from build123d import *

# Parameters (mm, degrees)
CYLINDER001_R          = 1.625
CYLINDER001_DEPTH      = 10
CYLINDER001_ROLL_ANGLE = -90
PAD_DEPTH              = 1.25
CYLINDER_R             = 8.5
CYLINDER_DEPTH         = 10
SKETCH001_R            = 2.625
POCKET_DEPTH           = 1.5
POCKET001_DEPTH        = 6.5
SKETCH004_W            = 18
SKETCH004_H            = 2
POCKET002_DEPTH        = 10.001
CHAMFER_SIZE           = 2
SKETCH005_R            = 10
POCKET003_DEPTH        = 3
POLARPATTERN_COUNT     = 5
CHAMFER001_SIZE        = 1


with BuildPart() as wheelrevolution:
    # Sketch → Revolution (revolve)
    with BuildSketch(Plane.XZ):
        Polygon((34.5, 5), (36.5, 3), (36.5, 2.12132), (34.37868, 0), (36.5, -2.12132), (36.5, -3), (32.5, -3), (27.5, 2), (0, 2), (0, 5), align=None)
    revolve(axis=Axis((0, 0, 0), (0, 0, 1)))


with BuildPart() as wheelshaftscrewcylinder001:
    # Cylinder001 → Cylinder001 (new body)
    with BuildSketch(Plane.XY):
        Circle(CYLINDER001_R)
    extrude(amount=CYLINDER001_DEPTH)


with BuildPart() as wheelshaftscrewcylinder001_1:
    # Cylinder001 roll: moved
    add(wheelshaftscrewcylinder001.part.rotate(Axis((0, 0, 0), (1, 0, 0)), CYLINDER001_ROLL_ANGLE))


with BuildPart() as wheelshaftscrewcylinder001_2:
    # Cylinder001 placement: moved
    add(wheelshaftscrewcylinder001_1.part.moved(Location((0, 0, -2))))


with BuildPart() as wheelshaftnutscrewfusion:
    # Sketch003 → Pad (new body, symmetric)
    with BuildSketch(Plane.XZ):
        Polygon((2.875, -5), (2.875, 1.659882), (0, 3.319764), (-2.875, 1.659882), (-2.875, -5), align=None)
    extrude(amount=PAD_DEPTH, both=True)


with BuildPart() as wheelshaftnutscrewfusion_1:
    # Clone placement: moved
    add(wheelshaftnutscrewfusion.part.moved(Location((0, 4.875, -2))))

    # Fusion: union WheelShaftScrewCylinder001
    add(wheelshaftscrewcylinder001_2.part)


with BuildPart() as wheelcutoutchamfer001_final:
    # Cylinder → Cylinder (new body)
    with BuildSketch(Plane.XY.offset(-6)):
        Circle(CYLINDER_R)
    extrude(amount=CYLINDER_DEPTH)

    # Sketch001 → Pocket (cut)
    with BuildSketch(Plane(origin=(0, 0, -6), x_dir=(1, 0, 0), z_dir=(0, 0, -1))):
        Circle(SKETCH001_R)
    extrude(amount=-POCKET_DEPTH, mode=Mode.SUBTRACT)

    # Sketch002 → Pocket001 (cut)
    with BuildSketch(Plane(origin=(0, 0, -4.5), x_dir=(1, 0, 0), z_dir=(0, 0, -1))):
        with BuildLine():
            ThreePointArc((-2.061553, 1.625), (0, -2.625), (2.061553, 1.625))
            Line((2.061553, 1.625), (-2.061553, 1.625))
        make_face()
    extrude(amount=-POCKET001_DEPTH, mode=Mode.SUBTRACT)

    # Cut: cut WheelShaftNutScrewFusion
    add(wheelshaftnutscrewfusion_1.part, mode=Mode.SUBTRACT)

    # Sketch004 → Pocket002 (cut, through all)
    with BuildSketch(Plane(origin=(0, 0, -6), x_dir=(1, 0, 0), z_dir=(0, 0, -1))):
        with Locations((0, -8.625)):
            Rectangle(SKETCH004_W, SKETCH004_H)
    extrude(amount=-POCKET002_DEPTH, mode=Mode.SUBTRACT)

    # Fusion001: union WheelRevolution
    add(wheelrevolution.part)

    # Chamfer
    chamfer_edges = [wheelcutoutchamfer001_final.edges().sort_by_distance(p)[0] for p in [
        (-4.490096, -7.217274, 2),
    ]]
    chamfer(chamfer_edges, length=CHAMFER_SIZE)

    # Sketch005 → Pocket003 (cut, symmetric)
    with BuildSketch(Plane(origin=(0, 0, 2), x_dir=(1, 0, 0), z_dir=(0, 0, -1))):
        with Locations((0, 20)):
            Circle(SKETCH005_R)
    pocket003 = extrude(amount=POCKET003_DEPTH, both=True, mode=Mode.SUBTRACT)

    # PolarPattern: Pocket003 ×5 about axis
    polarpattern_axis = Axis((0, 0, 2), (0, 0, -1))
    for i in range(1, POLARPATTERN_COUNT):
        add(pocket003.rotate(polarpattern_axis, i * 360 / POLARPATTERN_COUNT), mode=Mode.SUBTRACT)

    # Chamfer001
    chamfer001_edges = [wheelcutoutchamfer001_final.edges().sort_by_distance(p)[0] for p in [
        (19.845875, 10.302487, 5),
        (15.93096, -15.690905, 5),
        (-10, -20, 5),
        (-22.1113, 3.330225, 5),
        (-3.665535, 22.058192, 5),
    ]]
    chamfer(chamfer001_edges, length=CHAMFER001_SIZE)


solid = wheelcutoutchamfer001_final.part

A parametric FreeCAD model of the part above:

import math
import FreeCAD as App
import Part
import Sketcher
Q = App.Units.Quantity


def edges_at(feature, points):
    """Names of the edges that pass closest to the given points."""
    edges = feature.Shape.Edges
    near = lambda p: min(range(len(edges)), key=lambda i: edges[i].distToShape(Part.Vertex(*p))[0])
    return sorted({f"Edge{near(p) + 1}" for p in points})

doc = App.newDocument("Part")
body = doc.addObject("PartDesign::Body", "Body")

# Sketch on XZ plane
sketch1 = body.newObject("Sketcher::SketchObject", "Sketch")
sketch1.AttachmentSupport = (doc.getObject("XZ_Plane"), [""])
sketch1.MapMode = "FlatFace"
sketch1.addGeometry([
    Part.LineSegment(App.Vector(36.5, 3, 0), App.Vector(34.5, 5, 0)),  # 0
    Part.LineSegment(App.Vector(34.5, 5, 0), App.Vector(0, 5, 0)),  # 1
    Part.LineSegment(App.Vector(0, 5, 0), App.Vector(0, 2, 0)),  # 2
    Part.LineSegment(App.Vector(0, 2, 0), App.Vector(27.5, 2, 0)),  # 3
    Part.LineSegment(App.Vector(27.5, 2, 0), App.Vector(32.5, -3, 0)),  # 4
    Part.LineSegment(App.Vector(32.5, -3, 0), App.Vector(36.5, -3, 0)),  # 5
    Part.LineSegment(App.Vector(36.5, -3, 0), App.Vector(36.5, -2.1, 0)),  # 6
    Part.LineSegment(App.Vector(36.5, -2.1, 0), App.Vector(34.4, 0, 0)),  # 7
    Part.LineSegment(App.Vector(34.4, 0, 0), App.Vector(36.5, 2.1, 0)),  # 8
    Part.LineSegment(App.Vector(36.5, 2.1, 0), App.Vector(36.5, 3, 0)),  # 9
], False)
sketch1.addConstraint([
    Sketcher.Constraint("Coincident", 0, 2, 1, 1),
    Sketcher.Constraint("Coincident", 1, 2, 2, 1),
    Sketcher.Constraint("Coincident", 2, 2, 3, 1),
    Sketcher.Constraint("Coincident", 3, 2, 4, 1),
    Sketcher.Constraint("Coincident", 4, 2, 5, 1),
    Sketcher.Constraint("Coincident", 5, 2, 6, 1),
    Sketcher.Constraint("Coincident", 6, 2, 7, 1),
    Sketcher.Constraint("Coincident", 7, 2, 8, 1),
    Sketcher.Constraint("Coincident", 8, 2, 9, 1),
    Sketcher.Constraint("Coincident", 9, 2, 0, 1),
    Sketcher.Constraint("Horizontal", 1),
    Sketcher.Constraint("Vertical", 2),
    Sketcher.Constraint("Horizontal", 3),
    Sketcher.Constraint("Horizontal", 5),
    Sketcher.Constraint("Vertical", 6),
    Sketcher.Constraint("Vertical", 9),
    Sketcher.Constraint("Symmetric", 6, 2, 8, 2, -1),
    Sketcher.Constraint("PointOnObject", 1, 2, -2),
    Sketcher.Constraint("PointOnObject", 7, 2, -1),
    Sketcher.Constraint("Parallel", 0, 4),
    Sketcher.Constraint("Parallel", 4, 7),
    Sketcher.Constraint("Perpendicular", 7, 8),
    Sketcher.Constraint("Equal", 6, 9),
    Sketcher.Constraint("DistanceX", 5, 1, 5, 2, Q("4 mm")),
    Sketcher.Constraint("DistanceY", 2, 2, 2, 1, Q("3 mm")),
    Sketcher.Constraint("Distance", 7, Q("3 mm")),
    Sketcher.Constraint("DistanceX", 1, 2, 1, 1, Q("34.5 mm")),
    Sketcher.Constraint("DistanceX", 3, 1, 3, 2, Q("27.5 mm")),
    Sketcher.Constraint("DistanceY", -1, 1, 0, 2, Q("5 mm")),
])
revolution = body.newObject("PartDesign::Revolution", "Revolution")
revolution.Profile = sketch1
revolution.ReferenceAxis = (sketch1, ["V_Axis"])
revolution.Angle = 360
body2 = doc.addObject("PartDesign::Body", "Body001")

# Sketch on XY plane
sketch2 = body2.newObject("Sketcher::SketchObject", "Sketch001")
sketch2.AttachmentSupport = (doc.getObject("XY_Plane001"), [""])
sketch2.MapMode = "FlatFace"
sketch2.addGeometry(Part.Circle(App.Vector(0, 0, 0), App.Vector(0, 0, 1), 1.6), False)
sketch2.addConstraint([
    Sketcher.Constraint("Coincident", 0, 3, -1, 1),
    Sketcher.Constraint("Diameter", 0, Q("3.25 mm")),
])
pad1 = body2.newObject("PartDesign::Pad", "Pad")
pad1.Profile = sketch2
pad1.Length = 10
body3 = doc.addObject("PartDesign::Body", "Body002")
doc.recompute()

body2.Placement = App.Placement(App.Vector(0, 0, 0), App.Rotation(App.Vector(1, 0, 0), 270))
boolean = body3.newObject("PartDesign::Boolean", "Boolean")
boolean.Type = "Fuse"
boolean.addObjects([body2])
body4 = doc.addObject("PartDesign::Body", "Body003")
doc.recompute()

body3.Placement = App.Placement(App.Vector(0, 0, -2), App.Rotation(App.Vector(0, 0, 1), 0))
boolean2 = body4.newObject("PartDesign::Boolean", "Boolean001")
boolean2.Type = "Fuse"
boolean2.addObjects([body3])
body5 = doc.addObject("PartDesign::Body", "Body004")

# Sketch on XZ plane
sketch3 = body5.newObject("Sketcher::SketchObject", "Sketch002")
sketch3.AttachmentSupport = (doc.getObject("XZ_Plane004"), [""])
sketch3.MapMode = "FlatFace"
sketch3.addGeometry([
    Part.LineSegment(App.Vector(2.9, -5, 0), App.Vector(2.9, 1.7, 0)),  # 0
    Part.LineSegment(App.Vector(2.9, 1.7, 0), App.Vector(0, 3.3, 0)),  # 1
    Part.LineSegment(App.Vector(0, 3.3, 0), App.Vector(-2.9, 1.7, 0)),  # 2
    Part.LineSegment(App.Vector(-2.9, 1.7, 0), App.Vector(-2.9, -5, 0)),  # 3
    Part.LineSegment(App.Vector(-2.9, -5, 0), App.Vector(2.9, -5, 0)),  # 4
], False)
sketch3.addConstraint([
    Sketcher.Constraint("Coincident", 0, 2, 1, 1),
    Sketcher.Constraint("Coincident", 1, 2, 2, 1),
    Sketcher.Constraint("Coincident", 2, 2, 3, 1),
    Sketcher.Constraint("Coincident", 3, 2, 4, 1),
    Sketcher.Constraint("Coincident", 4, 2, 0, 1),
    Sketcher.Constraint("Vertical", 0),
    Sketcher.Constraint("Vertical", 3),
    Sketcher.Constraint("Horizontal", 4),
    Sketcher.Constraint("Symmetric", 0, 2, 2, 2, -2),
    Sketcher.Constraint("PointOnObject", 1, 2, -2),
    Sketcher.Constraint("Angle", 1, Q("150 deg")),
    Sketcher.Constraint("DistanceY", 3, 2, -1, 1, Q("5 mm")),
    Sketcher.Constraint("DistanceX", 4, 1, 4, 2, Q("5.75 mm")),
    Sketcher.Constraint("DistanceY", 0, 1, 0, 2, Q("6.659882 mm")),
])
pad2 = body5.newObject("PartDesign::Pad", "Pad001")
pad2.Profile = sketch3
pad2.Length = 2.5
pad2.Midplane = True
body6 = doc.addObject("PartDesign::Body", "Body005")
doc.recompute()

body5.Placement = App.Placement(App.Vector(0, 4.875, -2), App.Rotation(App.Vector(0, 0, 1), 0))
boolean3 = body6.newObject("PartDesign::Boolean", "Boolean002")
boolean3.Type = "Fuse"
boolean3.addObjects([body5])
doc.recompute()

boolean4 = body6.newObject("PartDesign::Boolean", "Boolean003")
boolean4.Type = "Fuse"
boolean4.addObjects([body4])
body7 = doc.addObject("PartDesign::Body", "Body006")

# Sketch on XY plane
sketch4 = body7.newObject("Sketcher::SketchObject", "Sketch003")
sketch4.AttachmentSupport = (doc.getObject("XY_Plane006"), [""])
sketch4.MapMode = "FlatFace"
sketch4.AttachmentOffset = App.Placement(App.Vector(0, 0, -6), App.Rotation())
sketch4.addGeometry(Part.Circle(App.Vector(0, 0, 0), App.Vector(0, 0, 1), 8), False)
sketch4.addConstraint([
    Sketcher.Constraint("Coincident", 0, 3, -1, 1),
    Sketcher.Constraint("Diameter", 0, Q("17 mm")),
])
pad3 = body7.newObject("PartDesign::Pad", "Pad002")
pad3.Profile = sketch4
pad3.Length = 10

# Sketch on XY plane
sketch5 = body7.newObject("Sketcher::SketchObject", "Sketch004")
sketch5.AttachmentSupport = (doc.getObject("XY_Plane006"), [""])
sketch5.MapMode = "FlatFace"
sketch5.AttachmentOffset = App.Placement(App.Vector(0, 0, -6), App.Rotation())
sketch5.addGeometry(Part.Circle(App.Vector(0, 0, 0), App.Vector(0, 0, 1), 2.6), False)
sketch5.addConstraint([
    Sketcher.Constraint("Coincident", 0, 3, -1, 1),
    Sketcher.Constraint("Diameter", 0, Q("5.25 mm")),
])
pocket1 = body7.newObject("PartDesign::Pocket", "Pocket")
pocket1.Profile = sketch5
pocket1.Length = 1.5
pocket1.Reversed = True

# Sketch on XY plane
sketch6 = body7.newObject("Sketcher::SketchObject", "Sketch005")
sketch6.AttachmentSupport = (doc.getObject("XY_Plane006"), [""])
sketch6.MapMode = "FlatFace"
sketch6.AttachmentOffset = App.Placement(App.Vector(0, 0, -4.5), App.Rotation())
sketch6.addGeometry([
    Part.ArcOfCircle(Part.Circle(App.Vector(0, 0, 0), App.Vector(0, 0, 1), 2.6), math.radians(-38), math.radians(218)),
    Part.LineSegment(App.Vector(2.1, -1.6, 0), App.Vector(-2.1, -1.6, 0)),
], False)
sketch6.addConstraint([
    Sketcher.Constraint("Coincident", 0, 1, 1, 1),
    Sketcher.Constraint("Coincident", 1, 2, 0, 2),
    Sketcher.Constraint("Horizontal", 1),
    Sketcher.Constraint("Coincident", 0, 3, -1, 1),
    Sketcher.Constraint("Radius", 0, Q("2.625 mm")),
    Sketcher.Constraint("DistanceY", 0, 1, -1, 1, Q("1.625 mm")),
])
pocket2 = body7.newObject("PartDesign::Pocket", "Pocket001")
pocket2.Profile = sketch6
pocket2.Length = 6.5
pocket2.Reversed = True
doc.recompute()

boolean5 = body7.newObject("PartDesign::Boolean", "Boolean004")
boolean5.Type = "Cut"
boolean5.addObjects([body6])

# Sketch on XY plane
sketch7 = body7.newObject("Sketcher::SketchObject", "Sketch006")
sketch7.AttachmentSupport = (doc.getObject("XY_Plane006"), [""])
sketch7.MapMode = "FlatFace"
sketch7.AttachmentOffset = App.Placement(App.Vector(0, 0, -6), App.Rotation())
sketch7.addGeometry([
    Part.LineSegment(App.Vector(-9, 7.6, 0), App.Vector(-9, 9.6, 0)),
    Part.LineSegment(App.Vector(-9, 9.6, 0), App.Vector(9, 9.6, 0)),
    Part.LineSegment(App.Vector(9, 9.6, 0), App.Vector(9, 7.6, 0)),
    Part.LineSegment(App.Vector(9, 7.6, 0), App.Vector(-9, 7.6, 0)),
], False)
sketch7.addConstraint([
    Sketcher.Constraint("Coincident", 0, 2, 1, 1),
    Sketcher.Constraint("Coincident", 1, 2, 2, 1),
    Sketcher.Constraint("Coincident", 2, 2, 3, 1),
    Sketcher.Constraint("Coincident", 3, 2, 0, 1),
    Sketcher.Constraint("Vertical", 0),
    Sketcher.Constraint("Horizontal", 1),
    Sketcher.Constraint("Vertical", 2),
    Sketcher.Constraint("Horizontal", 3),
    Sketcher.Constraint("DistanceX", 1, 1, 1, 2, Q("18 mm")),
    Sketcher.Constraint("DistanceY", 0, 1, 0, 2, Q("2 mm")),
    Sketcher.Constraint("DistanceX", 0, 2, -1, 1, Q("9 mm")),
    Sketcher.Constraint("DistanceY", -1, 1, 0, 2, Q("9.625 mm")),
])
pocket3 = body7.newObject("PartDesign::Pocket", "Pocket002")
pocket3.Profile = sketch7
pocket3.Type = "ThroughAll"
pocket3.Reversed = True
doc.recompute()

boolean6 = body7.newObject("PartDesign::Boolean", "Boolean005")
boolean6.Type = "Fuse"
boolean6.addObjects([body])
doc.recompute()

chamfer = body7.newObject("PartDesign::Chamfer", "Chamfer")
chamfer.Base = (boolean6, edges_at(boolean6, [(0, -8.5, 2)]))
chamfer.Size = 2

# Sketch on XY plane
sketch8 = body7.newObject("Sketcher::SketchObject", "Sketch007")
sketch8.AttachmentSupport = (doc.getObject("XY_Plane006"), [""])
sketch8.MapMode = "FlatFace"
sketch8.AttachmentOffset = App.Placement(App.Vector(0, 0, 2), App.Rotation())
sketch8.addGeometry(Part.Circle(App.Vector(0, -20, 0), App.Vector(0, 0, 1), 10), False)
sketch8.addConstraint([
    Sketcher.Constraint("PointOnObject", 0, 3, -2),
    Sketcher.Constraint("Diameter", 0, Q("20 mm")),
    Sketcher.Constraint("DistanceY", 0, 3, -1, 1, Q("20 mm")),
])
pocket4 = body7.newObject("PartDesign::Pocket", "Pocket003")
pocket4.Profile = sketch8
pocket4.Length = 6
pocket4.Midplane = True
doc.recompute()

polarpattern = body7.newObject("PartDesign::PolarPattern", "PolarPattern")
polarpattern.Originals = [pocket4]
polarpattern.Axis = (doc.getObject("Z_Axis006"), [""])
polarpattern.Angle = 360
polarpattern.Occurrences = 5
body7.Tip = polarpattern
doc.recompute()

chamfer2 = body7.newObject("PartDesign::Chamfer", "Chamfer001")
chamfer2.Base = (polarpattern, edges_at(polarpattern, [
    (19.846, 10.302, 5),
    (15.931, -15.691, 5),
    (-10, -20, 5),
    (-22.111, 3.33, 5),
    (-3.666, 22.058, 5),
]))
chamfer2.Size = 1

doc.recompute()
